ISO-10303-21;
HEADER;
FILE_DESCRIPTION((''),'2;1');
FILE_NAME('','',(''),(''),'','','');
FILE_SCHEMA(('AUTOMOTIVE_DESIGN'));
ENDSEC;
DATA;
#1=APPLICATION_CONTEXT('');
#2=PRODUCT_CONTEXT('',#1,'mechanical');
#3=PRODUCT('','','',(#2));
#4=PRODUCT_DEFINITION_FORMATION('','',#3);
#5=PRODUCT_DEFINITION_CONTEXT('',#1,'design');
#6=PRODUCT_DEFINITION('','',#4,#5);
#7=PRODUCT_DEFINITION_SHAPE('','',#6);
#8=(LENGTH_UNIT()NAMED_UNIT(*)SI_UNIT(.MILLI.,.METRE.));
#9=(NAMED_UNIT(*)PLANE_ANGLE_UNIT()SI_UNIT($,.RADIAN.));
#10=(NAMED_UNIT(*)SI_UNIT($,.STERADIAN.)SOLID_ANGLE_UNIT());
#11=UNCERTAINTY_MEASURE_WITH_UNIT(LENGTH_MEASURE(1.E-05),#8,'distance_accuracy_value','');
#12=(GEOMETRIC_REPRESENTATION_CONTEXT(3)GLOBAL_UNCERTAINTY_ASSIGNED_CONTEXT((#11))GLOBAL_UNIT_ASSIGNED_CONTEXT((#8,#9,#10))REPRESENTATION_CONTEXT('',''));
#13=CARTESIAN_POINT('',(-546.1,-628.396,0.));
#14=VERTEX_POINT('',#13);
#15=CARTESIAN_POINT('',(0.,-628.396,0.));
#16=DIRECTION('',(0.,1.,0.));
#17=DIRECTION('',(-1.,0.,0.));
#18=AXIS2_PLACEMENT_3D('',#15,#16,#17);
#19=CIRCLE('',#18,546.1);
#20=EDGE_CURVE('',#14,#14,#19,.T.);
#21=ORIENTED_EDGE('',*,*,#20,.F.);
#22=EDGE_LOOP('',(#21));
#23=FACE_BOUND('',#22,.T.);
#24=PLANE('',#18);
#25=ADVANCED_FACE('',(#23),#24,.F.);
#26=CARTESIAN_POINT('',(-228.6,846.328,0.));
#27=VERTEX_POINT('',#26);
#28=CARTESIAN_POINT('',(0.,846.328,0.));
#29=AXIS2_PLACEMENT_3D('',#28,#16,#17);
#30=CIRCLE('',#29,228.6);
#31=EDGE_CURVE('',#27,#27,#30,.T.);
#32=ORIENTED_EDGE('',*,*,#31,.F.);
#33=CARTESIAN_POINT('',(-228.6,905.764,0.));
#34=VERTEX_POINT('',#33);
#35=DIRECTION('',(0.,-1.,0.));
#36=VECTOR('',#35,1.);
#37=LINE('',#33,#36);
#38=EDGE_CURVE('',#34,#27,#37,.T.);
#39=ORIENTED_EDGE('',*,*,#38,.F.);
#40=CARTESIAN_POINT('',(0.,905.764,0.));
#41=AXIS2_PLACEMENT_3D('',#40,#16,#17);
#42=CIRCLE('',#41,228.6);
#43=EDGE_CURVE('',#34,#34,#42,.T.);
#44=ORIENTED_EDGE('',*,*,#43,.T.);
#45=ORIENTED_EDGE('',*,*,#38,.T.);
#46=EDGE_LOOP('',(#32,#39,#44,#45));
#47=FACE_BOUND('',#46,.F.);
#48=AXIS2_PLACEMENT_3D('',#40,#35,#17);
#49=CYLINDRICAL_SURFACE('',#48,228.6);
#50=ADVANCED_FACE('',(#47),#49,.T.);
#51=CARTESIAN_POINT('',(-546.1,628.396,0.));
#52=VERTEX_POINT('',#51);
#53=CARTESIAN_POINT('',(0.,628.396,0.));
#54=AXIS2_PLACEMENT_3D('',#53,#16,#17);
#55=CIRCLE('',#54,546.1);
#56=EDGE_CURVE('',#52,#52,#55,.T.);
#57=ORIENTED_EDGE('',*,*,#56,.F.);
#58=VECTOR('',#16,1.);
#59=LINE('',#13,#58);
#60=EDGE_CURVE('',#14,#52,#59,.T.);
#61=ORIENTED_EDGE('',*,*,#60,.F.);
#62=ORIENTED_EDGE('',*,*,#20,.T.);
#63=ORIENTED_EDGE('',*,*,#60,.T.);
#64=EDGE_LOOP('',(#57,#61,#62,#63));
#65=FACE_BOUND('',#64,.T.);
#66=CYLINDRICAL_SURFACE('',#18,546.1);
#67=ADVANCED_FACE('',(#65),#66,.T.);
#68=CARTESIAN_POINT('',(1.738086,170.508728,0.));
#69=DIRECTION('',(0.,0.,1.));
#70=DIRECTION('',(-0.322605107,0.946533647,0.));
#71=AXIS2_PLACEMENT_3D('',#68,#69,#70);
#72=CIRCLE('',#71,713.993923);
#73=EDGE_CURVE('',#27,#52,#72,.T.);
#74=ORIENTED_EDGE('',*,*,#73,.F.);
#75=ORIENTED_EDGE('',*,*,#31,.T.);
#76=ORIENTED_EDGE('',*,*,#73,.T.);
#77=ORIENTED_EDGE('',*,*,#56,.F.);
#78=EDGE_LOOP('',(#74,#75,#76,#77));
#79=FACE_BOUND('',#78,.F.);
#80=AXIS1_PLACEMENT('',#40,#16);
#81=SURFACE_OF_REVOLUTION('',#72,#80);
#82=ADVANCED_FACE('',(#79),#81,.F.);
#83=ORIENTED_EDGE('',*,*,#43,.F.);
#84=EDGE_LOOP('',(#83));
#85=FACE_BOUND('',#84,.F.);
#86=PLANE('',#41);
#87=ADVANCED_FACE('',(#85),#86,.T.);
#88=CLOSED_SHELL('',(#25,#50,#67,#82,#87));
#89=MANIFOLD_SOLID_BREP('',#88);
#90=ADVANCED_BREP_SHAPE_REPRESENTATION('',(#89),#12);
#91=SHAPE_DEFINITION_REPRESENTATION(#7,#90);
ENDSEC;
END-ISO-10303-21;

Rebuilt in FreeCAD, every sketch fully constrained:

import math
import FreeCAD as App
import Part
import Sketcher
Q = App.Units.Quantity

doc = App.newDocument("Part")
body = doc.addObject("PartDesign::Body", "Body")

sketch1 = doc.addObject("Sketcher::SketchObject", "Sketch")
body.addObject(sketch1)
sketch1.AttachmentSupport = (doc.XY_Plane, [""])
sketch1.MapMode = "FlatFace"
sketch1.addGeometry(Part.LineSegment(App.Vector(-546.1, -628.396, 0), App.Vector(0, -628.396, 0)), False)
sketch1.addGeometry(Part.LineSegment(App.Vector(0, -628.396, 0), App.Vector(0, 905.764, 0)), False)
sketch1.addGeometry(Part.LineSegment(App.Vector(0, 905.764, 0), App.Vector(-228.6, 905.764, 0)), False)
sketch1.addGeometry(Part.LineSegment(App.Vector(-228.6, 905.764, 0), App.Vector(-228.6, 846.328, 0)), False)
sketch1.addGeometry(Part.ArcOfCircle(Part.Circle(App.Vector(1.7381, 170.5087, 0), App.Vector(0, 0, 1), 713.993954), math.radians(108.820544), math.radians(140.110863)), False)
sketch1.addGeometry(Part.LineSegment(App.Vector(-546.1, 628.396, 0), App.Vector(-546.1, -628.396, 0)), False)
sketch1.addConstraint(Sketcher.Constraint("Coincident", 0, 2, 1, 1))
sketch1.addConstraint(Sketcher.Constraint("Coincident", 1, 2, 2, 1))
sketch1.addConstraint(Sketcher.Constraint("Coincident", 2, 2, 3, 1))
sketch1.addConstraint(Sketcher.Constraint("Coincident", 3, 2, 4, 1))
sketch1.addConstraint(Sketcher.Constraint("Coincident", 4, 2, 5, 1))
sketch1.addConstraint(Sketcher.Constraint("Coincident", 5, 2, 0, 1))
sketch1.addConstraint(Sketcher.Constraint("Horizontal", 0))
sketch1.addConstraint(Sketcher.Constraint("Vertical", 1))
sketch1.addConstraint(Sketcher.Constraint("Horizontal", 2))
sketch1.addConstraint(Sketcher.Constraint("Vertical", 3))
sketch1.addConstraint(Sketcher.Constraint("Vertical", 5))
sketch1.addConstraint(Sketcher.Constraint("PointOnObject", 0, 2, -2))
sketch1.addConstraint(Sketcher.Constraint("Radius", 4, Q("28.11 in")))
sketch1.addConstraint(Sketcher.Constraint("DistanceY", 3, 2, 3, 1, Q("2.34 in")))
sketch1.addConstraint(Sketcher.Constraint("DistanceY", 5, 2, 5, 1, Q("49.48 in")))
sketch1.addConstraint(Sketcher.Constraint("DistanceX", 2, 2, 2, 1, Q("9 in")))
sketch1.addConstraint(Sketcher.Constraint("DistanceX", 0, 1, 0, 2, Q("21.5 in")))
sketch1.addConstraint(Sketcher.Constraint("DistanceY", 1, 1, 1, 2, Q("60.4 in")))
sketch1.addConstraint(Sketcher.Constraint("DistanceY", 0, 2, -1, 1, Q("24.74 in")))
revolution = doc.addObject("PartDesign::Revolution", "Revolution")
body.addObject(revolution)
revolution.Profile = sketch1
revolution.ReferenceAxis = (sketch1, ["V_Axis"])
revolution.Angle = 360

doc.recompute()
